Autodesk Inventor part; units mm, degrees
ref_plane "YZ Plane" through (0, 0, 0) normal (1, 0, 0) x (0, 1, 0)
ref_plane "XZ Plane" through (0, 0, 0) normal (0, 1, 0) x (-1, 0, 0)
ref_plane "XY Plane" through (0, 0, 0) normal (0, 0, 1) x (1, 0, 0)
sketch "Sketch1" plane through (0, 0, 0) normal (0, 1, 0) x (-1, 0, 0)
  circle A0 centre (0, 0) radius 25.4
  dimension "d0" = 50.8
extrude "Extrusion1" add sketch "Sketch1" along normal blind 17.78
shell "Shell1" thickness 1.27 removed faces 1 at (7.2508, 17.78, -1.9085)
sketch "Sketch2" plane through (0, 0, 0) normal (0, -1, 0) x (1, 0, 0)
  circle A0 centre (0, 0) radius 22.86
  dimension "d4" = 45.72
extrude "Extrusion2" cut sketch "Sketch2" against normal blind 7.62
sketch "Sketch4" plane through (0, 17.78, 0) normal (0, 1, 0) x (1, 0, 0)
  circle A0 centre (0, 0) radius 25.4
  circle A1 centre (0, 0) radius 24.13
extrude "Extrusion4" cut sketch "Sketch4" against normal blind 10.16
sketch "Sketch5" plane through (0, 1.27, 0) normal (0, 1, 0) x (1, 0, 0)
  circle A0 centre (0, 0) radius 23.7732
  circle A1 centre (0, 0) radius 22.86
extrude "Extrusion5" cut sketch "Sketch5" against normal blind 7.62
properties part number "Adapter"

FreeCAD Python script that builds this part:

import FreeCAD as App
import Part
import Sketcher
from FreeCAD import Vector
Q = App.Units.Quantity


def faces_at(feature, points):
    """Names of the faces that lie closest to the given points."""
    faces = feature.Shape.Faces
    near = lambda p: min(range(len(faces)), key=lambda i: faces[i].distToShape(Part.Vertex(*p))[0])
    return sorted({f"Face{near(p) + 1}" for p in points})

doc = App.newDocument("Part")
params = doc.addObject("Spreadsheet::Sheet", "Params")
for row, (alias, value) in enumerate([
    ("sketch1_diameter", "2 in"),
    ("pad1_length", "0.7 in"),
    ("thickness_wall", "0.05 in"),
    ("sketch2_diameter", "1.8 in"),
    ("pocket1_length", "0.3 in"),
    ("sketch3_diameter", "2 in"),
    ("sketch3_diameter2", "1.9 in"),
    ("pocket2_length", "0.4 in"),
    ("sketch4_diameter", "1.8 in"),
    ("pocket3_length", "0.3 in"),
], start=1):
    params.set(f"A{row}", alias)
    params.set(f"B{row}", "=" + value)
    params.setAlias(f"B{row}", alias)

body = doc.addObject("PartDesign::Body", "Body")

# Sketch on XZ plane
sketch1 = body.newObject("Sketcher::SketchObject", "Sketch")
sketch1.AttachmentSupport = (doc.getObject("XZ_Plane"), [""])
sketch1.MapMode = "FlatFace"
sketch1.addGeometry(Part.Circle(Vector(0, 0, 0), Vector(0, 0, 1), 25), False)
sketch1.addConstraint(Sketcher.Constraint("Coincident", 0, 3, -1, 1))
sketch1.addConstraint(Sketcher.Constraint("Diameter", 0, Q("2 in")))
sketch1.setExpression("Constraints[1]", "Params.sketch1_diameter")
pad1 = body.newObject("PartDesign::Pad", "Pad")
pad1.Profile = sketch1
pad1.setExpression("Length", "Params.pad1_length")
pad1.Reversed = True
doc.recompute()

thickness = body.newObject("PartDesign::Thickness", "Thickness")
thickness.Base = (pad1, faces_at(pad1, [(7.251, 17.78, -1.909)]))
thickness.setExpression("Value", "Params.thickness_wall")
thickness.Reversed = True
thickness.Join = "Intersection"

# Sketch on XZ plane
sketch2 = body.newObject("Sketcher::SketchObject", "Sketch001")
sketch2.AttachmentSupport = (doc.getObject("XZ_Plane"), [""])
sketch2.MapMode = "FlatFace"
sketch2.addGeometry(Part.Circle(Vector(0, 0, 0), Vector(0, 0, 1), 23), False)
sketch2.addConstraint(Sketcher.Constraint("Coincident", 0, 3, -1, 1))
sketch2.addConstraint(Sketcher.Constraint("Diameter", 0, Q("1.8 in")))
sketch2.setExpression("Constraints[1]", "Params.sketch2_diameter")
pocket1 = body.newObject("PartDesign::Pocket", "Pocket")
pocket1.Profile = sketch2
pocket1.setExpression("Length", "Params.pocket1_length")

# Sketch on XZ plane
sketch3 = body.newObject("Sketcher::SketchObject", "Sketch002")
sketch3.AttachmentSupport = (doc.getObject("XZ_Plane"), [""])
sketch3.MapMode = "FlatFace"
sketch3.AttachmentOffset = App.Placement(Vector(0, 0, -0.7 * 25.4), App.Rotation())
sketch3.addGeometry(Part.Circle(Vector(0, 0, 0), Vector(0, 0, 1), 25), False)
sketch3.addGeometry(Part.Circle(Vector(0, 0, 0), Vector(0, 0, 1), 24), False)
sketch3.addConstraint(Sketcher.Constraint("Coincident", 0, 3, -1, 1))
sketch3.addConstraint(Sketcher.Constraint("Coincident", 1, 3, -1, 1))
sketch3.addConstraint(Sketcher.Constraint("Diameter", 0, Q("2 in")))
sketch3.addConstraint(Sketcher.Constraint("Diameter", 1, Q("1.9 in")))
sketch3.setExpression("Constraints[2]", "Params.sketch3_diameter")
sketch3.setExpression("Constraints[3]", "Params.sketch3_diameter2")
pocket2 = body.newObject("PartDesign::Pocket", "Pocket001")
pocket2.Profile = sketch3
pocket2.setExpression("Length", "Params.pocket2_length")
pocket2.Reversed = True

# Sketch on XZ plane
sketch4 = body.newObject("Sketcher::SketchObject", "Sketch003")
sketch4.AttachmentSupport = (doc.getObject("XZ_Plane"), [""])
sketch4.MapMode = "FlatFace"
sketch4.AttachmentOffset = App.Placement(Vector(0, 0, -0.05 * 25.4), App.Rotation())
sketch4.addGeometry(Part.Circle(Vector(0, 0, 0), Vector(0, 0, 1), 24), False)
sketch4.addGeometry(Part.Circle(Vector(0, 0, 0), Vector(0, 0, 1), 23), False)
sketch4.addConstraint(Sketcher.Constraint("Coincident", 0, 3, -1, 1))
sketch4.addConstraint(Sketcher.Constraint("Coincident", 1, 3, -1, 1))
sketch4.addConstraint(Sketcher.Constraint("Diameter", 1, Q("1.8 in")))
sketch4.addConstraint(Sketcher.Constraint("Diameter", 0, Q("1.8719 in")))
sketch4.setExpression("Constraints[2]", "Params.sketch4_diameter")
pocket3 = body.newObject("PartDesign::Pocket", "Pocket002")
pocket3.Profile = sketch4
pocket3.setExpression("Length", "Params.pocket3_length")
pocket3.Reversed = True

doc.recompute()
